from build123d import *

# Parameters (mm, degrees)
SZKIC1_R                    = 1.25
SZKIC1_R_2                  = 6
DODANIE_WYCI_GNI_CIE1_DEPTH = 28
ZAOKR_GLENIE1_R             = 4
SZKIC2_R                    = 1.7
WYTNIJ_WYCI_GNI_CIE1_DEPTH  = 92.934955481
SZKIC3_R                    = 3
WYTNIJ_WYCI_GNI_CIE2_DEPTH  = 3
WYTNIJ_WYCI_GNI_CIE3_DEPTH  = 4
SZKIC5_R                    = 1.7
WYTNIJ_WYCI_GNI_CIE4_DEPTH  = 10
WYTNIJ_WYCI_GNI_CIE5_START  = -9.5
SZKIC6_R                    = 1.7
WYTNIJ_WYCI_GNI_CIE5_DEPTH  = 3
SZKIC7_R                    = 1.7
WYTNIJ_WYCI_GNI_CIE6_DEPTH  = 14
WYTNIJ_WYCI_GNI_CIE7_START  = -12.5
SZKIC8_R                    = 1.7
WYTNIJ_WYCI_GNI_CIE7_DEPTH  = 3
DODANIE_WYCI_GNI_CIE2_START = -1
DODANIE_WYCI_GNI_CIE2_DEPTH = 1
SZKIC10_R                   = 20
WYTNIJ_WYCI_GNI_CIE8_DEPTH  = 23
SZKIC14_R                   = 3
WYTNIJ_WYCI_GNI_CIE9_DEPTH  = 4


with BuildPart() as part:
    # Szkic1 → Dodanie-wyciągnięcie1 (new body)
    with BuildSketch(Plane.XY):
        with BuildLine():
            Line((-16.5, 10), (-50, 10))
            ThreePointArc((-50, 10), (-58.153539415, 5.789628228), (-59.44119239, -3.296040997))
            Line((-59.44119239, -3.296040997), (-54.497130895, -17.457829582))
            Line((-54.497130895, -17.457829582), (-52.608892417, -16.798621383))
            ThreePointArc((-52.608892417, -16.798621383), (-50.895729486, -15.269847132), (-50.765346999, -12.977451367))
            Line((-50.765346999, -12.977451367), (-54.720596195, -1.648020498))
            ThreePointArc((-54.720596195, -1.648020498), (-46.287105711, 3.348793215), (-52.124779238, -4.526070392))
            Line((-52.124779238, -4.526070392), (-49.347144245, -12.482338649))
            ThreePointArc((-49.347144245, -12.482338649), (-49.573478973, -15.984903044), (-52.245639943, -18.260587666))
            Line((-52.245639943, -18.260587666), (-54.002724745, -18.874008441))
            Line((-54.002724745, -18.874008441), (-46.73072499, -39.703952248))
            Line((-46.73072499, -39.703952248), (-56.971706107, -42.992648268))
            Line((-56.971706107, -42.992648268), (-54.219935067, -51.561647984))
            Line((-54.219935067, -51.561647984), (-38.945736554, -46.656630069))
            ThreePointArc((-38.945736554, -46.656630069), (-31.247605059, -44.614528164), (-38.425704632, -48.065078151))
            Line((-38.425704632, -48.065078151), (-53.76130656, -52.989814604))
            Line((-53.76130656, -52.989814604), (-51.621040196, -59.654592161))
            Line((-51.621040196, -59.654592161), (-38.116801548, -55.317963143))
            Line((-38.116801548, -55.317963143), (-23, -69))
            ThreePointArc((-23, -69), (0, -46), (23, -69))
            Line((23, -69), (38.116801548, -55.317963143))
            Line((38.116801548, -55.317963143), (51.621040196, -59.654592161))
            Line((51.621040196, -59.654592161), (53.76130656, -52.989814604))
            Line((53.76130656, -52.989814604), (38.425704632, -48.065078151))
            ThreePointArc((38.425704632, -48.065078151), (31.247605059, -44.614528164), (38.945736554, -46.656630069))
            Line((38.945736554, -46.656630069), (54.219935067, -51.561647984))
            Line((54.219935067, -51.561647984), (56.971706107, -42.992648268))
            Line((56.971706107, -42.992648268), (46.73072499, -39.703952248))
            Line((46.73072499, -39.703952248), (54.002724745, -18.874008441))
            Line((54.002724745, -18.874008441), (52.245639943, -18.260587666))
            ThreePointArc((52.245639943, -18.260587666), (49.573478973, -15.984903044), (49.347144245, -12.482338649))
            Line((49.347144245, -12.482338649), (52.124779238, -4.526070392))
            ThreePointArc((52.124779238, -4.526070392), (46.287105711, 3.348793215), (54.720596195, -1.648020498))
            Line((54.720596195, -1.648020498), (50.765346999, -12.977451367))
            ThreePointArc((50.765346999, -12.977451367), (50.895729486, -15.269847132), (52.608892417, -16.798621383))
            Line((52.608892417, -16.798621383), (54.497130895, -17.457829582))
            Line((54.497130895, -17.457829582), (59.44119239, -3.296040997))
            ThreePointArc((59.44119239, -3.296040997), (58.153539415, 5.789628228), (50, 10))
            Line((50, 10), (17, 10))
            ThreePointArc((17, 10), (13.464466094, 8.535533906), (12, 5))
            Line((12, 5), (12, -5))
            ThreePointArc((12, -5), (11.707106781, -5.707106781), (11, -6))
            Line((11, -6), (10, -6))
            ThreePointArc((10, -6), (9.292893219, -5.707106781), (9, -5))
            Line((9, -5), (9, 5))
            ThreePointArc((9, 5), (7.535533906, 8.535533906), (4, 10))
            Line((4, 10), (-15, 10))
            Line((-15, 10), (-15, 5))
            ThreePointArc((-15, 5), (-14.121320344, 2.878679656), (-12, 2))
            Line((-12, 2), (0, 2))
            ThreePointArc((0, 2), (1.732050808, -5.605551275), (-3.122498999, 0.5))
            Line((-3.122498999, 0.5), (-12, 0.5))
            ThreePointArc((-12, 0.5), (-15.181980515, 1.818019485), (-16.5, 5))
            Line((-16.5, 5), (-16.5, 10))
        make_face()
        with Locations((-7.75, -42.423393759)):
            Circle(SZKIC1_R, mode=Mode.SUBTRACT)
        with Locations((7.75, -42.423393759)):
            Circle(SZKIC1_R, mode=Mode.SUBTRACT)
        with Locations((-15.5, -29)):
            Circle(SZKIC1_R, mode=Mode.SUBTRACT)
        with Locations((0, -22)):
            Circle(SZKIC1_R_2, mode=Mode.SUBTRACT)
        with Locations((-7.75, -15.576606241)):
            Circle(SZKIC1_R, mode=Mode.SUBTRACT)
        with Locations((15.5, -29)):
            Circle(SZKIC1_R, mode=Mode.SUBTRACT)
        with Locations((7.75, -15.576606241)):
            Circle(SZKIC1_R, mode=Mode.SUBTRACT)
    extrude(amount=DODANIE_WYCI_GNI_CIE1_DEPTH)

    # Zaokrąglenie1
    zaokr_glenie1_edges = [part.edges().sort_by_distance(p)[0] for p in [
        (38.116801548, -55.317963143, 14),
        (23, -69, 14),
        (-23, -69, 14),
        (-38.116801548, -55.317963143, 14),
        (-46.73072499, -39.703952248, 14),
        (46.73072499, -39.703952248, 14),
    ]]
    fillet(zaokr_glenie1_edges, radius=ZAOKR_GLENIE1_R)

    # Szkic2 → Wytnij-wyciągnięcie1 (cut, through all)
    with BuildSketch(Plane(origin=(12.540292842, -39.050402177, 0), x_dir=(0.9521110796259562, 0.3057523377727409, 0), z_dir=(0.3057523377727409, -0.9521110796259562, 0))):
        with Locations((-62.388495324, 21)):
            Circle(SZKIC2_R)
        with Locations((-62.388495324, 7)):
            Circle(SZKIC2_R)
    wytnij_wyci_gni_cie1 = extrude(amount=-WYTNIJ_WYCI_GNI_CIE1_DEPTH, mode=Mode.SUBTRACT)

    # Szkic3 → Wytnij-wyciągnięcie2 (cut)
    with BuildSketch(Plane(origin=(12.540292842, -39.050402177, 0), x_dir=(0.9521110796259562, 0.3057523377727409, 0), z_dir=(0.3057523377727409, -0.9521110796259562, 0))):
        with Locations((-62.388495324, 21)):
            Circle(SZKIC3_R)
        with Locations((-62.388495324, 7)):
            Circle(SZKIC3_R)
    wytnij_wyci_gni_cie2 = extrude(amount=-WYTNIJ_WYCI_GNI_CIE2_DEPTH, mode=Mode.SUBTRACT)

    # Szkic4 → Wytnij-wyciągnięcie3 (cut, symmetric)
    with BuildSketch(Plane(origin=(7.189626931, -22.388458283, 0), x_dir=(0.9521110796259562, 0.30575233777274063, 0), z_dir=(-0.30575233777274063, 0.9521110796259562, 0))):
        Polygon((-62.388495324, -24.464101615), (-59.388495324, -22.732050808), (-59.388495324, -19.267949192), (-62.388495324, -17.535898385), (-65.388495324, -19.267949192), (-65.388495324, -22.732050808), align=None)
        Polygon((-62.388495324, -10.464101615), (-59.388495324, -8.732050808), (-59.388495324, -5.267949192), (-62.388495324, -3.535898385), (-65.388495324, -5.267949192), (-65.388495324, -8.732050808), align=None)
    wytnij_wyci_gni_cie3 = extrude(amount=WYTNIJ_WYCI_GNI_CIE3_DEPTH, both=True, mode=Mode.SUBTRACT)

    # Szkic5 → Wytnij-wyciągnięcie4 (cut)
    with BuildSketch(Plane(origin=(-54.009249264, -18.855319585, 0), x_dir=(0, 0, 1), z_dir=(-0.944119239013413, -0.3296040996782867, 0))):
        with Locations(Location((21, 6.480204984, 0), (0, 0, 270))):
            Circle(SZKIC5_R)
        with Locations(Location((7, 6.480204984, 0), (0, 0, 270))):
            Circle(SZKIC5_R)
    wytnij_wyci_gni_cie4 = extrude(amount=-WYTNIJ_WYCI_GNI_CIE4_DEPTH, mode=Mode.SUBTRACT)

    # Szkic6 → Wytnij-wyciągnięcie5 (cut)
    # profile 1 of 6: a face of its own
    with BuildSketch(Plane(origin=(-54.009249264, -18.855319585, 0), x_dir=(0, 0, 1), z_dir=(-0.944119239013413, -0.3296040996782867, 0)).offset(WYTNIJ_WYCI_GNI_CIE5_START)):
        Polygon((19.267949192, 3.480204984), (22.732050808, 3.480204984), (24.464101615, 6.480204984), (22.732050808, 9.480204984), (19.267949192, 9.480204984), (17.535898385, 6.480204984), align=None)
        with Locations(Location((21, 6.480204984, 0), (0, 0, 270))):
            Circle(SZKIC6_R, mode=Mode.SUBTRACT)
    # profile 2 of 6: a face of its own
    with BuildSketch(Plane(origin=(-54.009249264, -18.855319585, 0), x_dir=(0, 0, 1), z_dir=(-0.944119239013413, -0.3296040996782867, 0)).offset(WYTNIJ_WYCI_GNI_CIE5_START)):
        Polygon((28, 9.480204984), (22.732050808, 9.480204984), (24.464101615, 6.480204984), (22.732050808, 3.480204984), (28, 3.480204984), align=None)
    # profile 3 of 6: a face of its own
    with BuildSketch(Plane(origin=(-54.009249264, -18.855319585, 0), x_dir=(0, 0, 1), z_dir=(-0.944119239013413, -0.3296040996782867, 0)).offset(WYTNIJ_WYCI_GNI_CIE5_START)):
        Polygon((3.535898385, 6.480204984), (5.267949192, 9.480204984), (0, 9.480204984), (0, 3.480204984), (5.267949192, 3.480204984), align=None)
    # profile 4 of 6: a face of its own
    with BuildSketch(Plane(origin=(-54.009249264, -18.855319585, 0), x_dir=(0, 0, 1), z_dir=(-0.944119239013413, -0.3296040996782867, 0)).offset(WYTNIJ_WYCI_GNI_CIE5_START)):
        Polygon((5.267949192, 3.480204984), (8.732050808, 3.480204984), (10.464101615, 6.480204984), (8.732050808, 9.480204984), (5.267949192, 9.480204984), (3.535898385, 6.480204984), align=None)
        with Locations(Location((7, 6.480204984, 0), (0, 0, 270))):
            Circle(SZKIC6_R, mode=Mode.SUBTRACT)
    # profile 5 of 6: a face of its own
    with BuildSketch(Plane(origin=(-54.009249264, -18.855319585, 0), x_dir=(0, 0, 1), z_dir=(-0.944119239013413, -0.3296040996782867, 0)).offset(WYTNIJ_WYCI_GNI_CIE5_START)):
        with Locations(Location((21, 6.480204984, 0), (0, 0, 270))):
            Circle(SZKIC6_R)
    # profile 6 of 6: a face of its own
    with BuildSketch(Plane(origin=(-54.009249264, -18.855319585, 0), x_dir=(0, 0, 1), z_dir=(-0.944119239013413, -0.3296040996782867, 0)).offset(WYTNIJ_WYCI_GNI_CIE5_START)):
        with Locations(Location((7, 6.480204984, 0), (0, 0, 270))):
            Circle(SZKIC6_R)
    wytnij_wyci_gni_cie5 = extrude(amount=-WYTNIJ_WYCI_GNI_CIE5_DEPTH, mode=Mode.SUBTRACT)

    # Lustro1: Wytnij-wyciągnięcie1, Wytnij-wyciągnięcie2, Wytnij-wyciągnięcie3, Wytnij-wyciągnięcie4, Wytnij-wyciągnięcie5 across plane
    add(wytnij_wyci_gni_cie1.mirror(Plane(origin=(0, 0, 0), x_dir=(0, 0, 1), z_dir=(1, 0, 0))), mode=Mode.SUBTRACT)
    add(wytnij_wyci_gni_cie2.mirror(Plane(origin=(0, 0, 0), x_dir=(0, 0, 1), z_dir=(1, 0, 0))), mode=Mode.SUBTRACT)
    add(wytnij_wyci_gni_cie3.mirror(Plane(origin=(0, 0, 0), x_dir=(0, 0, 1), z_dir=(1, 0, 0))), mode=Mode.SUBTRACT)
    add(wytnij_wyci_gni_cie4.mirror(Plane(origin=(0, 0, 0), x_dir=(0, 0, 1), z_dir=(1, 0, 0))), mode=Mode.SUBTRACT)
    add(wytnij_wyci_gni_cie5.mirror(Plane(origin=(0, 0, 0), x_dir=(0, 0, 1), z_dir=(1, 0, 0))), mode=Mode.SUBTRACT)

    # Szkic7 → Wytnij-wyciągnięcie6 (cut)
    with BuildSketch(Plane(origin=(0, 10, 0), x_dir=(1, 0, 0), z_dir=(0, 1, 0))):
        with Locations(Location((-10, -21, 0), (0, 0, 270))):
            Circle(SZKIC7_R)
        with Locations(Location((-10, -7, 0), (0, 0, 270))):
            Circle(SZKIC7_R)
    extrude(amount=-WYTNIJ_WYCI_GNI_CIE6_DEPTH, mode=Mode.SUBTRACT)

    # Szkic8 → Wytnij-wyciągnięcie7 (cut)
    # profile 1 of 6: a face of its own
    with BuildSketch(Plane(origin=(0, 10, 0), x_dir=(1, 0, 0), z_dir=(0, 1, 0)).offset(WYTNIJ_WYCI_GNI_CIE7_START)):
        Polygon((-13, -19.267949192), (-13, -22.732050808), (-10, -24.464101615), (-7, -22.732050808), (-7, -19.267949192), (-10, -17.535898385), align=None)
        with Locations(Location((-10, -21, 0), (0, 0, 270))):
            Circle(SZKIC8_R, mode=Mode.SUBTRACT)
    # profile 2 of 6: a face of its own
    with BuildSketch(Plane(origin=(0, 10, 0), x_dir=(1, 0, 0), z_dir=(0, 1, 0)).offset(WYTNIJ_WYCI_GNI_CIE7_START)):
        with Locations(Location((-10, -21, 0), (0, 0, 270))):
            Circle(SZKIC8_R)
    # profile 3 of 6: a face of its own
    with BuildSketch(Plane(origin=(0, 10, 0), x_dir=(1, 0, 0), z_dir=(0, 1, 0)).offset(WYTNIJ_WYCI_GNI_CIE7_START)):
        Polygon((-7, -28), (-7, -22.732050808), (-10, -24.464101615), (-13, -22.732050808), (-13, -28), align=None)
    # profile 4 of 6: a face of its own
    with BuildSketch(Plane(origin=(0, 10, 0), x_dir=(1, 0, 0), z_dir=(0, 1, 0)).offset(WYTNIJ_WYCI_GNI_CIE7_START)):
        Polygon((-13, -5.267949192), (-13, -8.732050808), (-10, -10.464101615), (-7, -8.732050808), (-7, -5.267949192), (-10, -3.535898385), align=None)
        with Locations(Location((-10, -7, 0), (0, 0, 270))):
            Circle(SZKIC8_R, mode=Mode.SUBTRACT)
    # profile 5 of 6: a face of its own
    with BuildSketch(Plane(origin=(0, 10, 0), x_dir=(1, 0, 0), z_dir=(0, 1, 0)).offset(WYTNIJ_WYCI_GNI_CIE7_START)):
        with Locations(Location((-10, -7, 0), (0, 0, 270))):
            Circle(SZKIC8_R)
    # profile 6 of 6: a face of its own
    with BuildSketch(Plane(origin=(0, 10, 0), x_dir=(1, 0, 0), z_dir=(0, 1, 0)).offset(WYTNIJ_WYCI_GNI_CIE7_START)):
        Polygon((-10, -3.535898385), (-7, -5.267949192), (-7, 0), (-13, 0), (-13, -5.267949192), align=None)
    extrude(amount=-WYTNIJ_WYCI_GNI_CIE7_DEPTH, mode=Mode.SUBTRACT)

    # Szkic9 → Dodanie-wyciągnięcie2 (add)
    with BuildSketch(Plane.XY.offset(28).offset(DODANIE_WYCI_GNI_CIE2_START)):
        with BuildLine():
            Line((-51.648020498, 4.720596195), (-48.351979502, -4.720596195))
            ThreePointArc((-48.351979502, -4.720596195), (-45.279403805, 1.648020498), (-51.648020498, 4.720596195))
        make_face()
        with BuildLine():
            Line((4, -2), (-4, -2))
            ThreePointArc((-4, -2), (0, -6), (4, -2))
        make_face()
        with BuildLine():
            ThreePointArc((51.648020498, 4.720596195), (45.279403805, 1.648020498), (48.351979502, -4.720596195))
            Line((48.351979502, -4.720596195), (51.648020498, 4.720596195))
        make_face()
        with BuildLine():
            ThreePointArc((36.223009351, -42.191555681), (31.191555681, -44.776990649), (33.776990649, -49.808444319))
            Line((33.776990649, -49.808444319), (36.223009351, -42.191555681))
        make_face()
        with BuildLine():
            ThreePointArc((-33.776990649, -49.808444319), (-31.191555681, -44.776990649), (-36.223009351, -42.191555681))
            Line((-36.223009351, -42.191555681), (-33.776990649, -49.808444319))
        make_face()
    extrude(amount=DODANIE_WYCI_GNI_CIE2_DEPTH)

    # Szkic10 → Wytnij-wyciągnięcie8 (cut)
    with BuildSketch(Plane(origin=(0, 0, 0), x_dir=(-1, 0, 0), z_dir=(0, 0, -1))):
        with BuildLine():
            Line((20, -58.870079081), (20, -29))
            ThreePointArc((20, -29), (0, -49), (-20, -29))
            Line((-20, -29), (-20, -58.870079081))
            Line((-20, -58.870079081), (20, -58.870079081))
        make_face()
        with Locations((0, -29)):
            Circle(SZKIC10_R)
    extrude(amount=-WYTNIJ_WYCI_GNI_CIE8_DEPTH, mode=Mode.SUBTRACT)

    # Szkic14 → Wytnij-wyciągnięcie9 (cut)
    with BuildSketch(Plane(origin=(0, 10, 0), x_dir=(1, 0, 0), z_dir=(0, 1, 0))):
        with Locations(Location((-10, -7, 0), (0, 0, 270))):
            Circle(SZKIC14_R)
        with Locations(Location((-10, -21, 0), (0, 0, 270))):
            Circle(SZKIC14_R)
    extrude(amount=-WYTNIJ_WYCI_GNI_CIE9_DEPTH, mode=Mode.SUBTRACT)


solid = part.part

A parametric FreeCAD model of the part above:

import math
import FreeCAD as App
import Part
import Sketcher
Q = App.Units.Quantity


def edges_at(feature, points):
    """Names of the edges that pass closest to the given points."""
    edges = feature.Shape.Edges
    near = lambda p: min(range(len(edges)), key=lambda i: edges[i].distToShape(Part.Vertex(*p))[0])
    return sorted({f"Edge{near(p) + 1}" for p in points})


def add_polygon(sketch, points):
    """Adds a closed chain of lines whose ends are joined by coincident constraints."""
    first, n = sketch.GeometryCount, len(points)
    for a, b in zip(points, points[1:] + points[:1]):
        sketch.addGeometry(Part.LineSegment(App.Vector(*a, 0), App.Vector(*b, 0)), False)
    for i in range(n):
        sketch.addConstraint(Sketcher.Constraint("Coincident", first + i, 2, first + (i + 1) % n, 1))

doc = App.newDocument("Part")
body = doc.addObject("PartDesign::Body", "Body")

# Sketch on XY plane
sketch1 = body.newObject("Sketcher::SketchObject", "Sketch")
sketch1.AttachmentSupport = (doc.getObject("XY_Plane"), [""])
sketch1.MapMode = "FlatFace"
sketch1.addGeometry(Part.LineSegment(App.Vector(-16.5, 10, 0), App.Vector(-50, 10, 0)), False)
sketch1.addGeometry(Part.ArcOfCircle(Part.Circle(App.Vector(-50, 0, 0), App.Vector(0, 0, 1), 10), math.radians(90), math.radians(199)), False)
sketch1.addGeometry(Part.LineSegment(App.Vector(-59.4, -3.3, 0), App.Vector(-54.5, -17.5, 0)), False)
sketch1.addGeometry(Part.LineSegment(App.Vector(-54.5, -17.5, 0), App.Vector(-52.6, -16.8, 0)), False)
sketch1.addGeometry(Part.ArcOfCircle(Part.Circle(App.Vector(-53.6, -14, 0), App.Vector(0, 0, 1), 3), math.radians(-71), math.radians(19)), False)
sketch1.addGeometry(Part.LineSegment(App.Vector(-50.8, -13, 0), App.Vector(-54.7, -1.6, 0)), False)
sketch1.addGeometry(Part.ArcOfCircle(Part.Circle(App.Vector(-50, 0, 0), App.Vector(0, 0, 1), 5), math.radians(-115), math.radians(199)), False)
sketch1.addGeometry(Part.LineSegment(App.Vector(-52.1, -4.5, 0), App.Vector(-49.3, -12.5, 0)), False)
sketch1.addGeometry(Part.ArcOfCircle(Part.Circle(App.Vector(-53.6, -14, 0), App.Vector(0, 0, 1), 4.5), math.radians(-73), math.radians(19)), False)
sketch1.addGeometry(Part.LineSegment(App.Vector(-52.2, -18.3, 0), App.Vector(-54, -18.9, 0)), False)
sketch1.addGeometry(Part.LineSegment(App.Vector(-54, -18.9, 0), App.Vector(-46.7, -39.7, 0)), False)
sketch1.addGeometry(Part.LineSegment(App.Vector(-46.7, -39.7, 0), App.Vector(-57, -43, 0)), False)
sketch1.addGeometry(Part.LineSegment(App.Vector(-57, -43, 0), App.Vector(-54.2, -51.6, 0)), False)
sketch1.addGeometry(Part.LineSegment(App.Vector(-54.2, -51.6, 0), App.Vector(-38.9, -46.7, 0)), False)
sketch1.addGeometry(Part.ArcOfCircle(Part.Circle(App.Vector(-35, -46, 0), App.Vector(0, 0, 1), 4), math.radians(-149), math.radians(189)), False)
sketch1.addGeometry(Part.LineSegment(App.Vector(-38.4, -48.1, 0), App.Vector(-53.8, -53, 0)), False)
sketch1.addGeometry(Part.LineSegment(App.Vector(-53.8, -53, 0), App.Vector(-51.6, -59.7, 0)), False)
sketch1.addGeometry(Part.LineSegment(App.Vector(-51.6, -59.7, 0), App.Vector(-38.1, -55.3, 0)), False)
sketch1.addGeometry(Part.LineSegment(App.Vector(-38.1, -55.3, 0), App.Vector(-23, -69, 0)), False)
sketch1.addGeometry(Part.ArcOfCircle(Part.Circle(App.Vector(0, -69, 0), App.Vector(0, 0, 1), 23), math.radians(0), math.radians(180)), False)
sketch1.addGeometry(Part.LineSegment(App.Vector(23, -69, 0), App.Vector(38.1, -55.3, 0)), False)
sketch1.addGeometry(Part.LineSegment(App.Vector(38.1, -55.3, 0), App.Vector(51.6, -59.7, 0)), False)
sketch1.addGeometry(Part.LineSegment(App.Vector(51.6, -59.7, 0), App.Vector(53.8, -53, 0)), False)
sketch1.addGeometry(Part.LineSegment(App.Vector(53.8, -53, 0), App.Vector(38.4, -48.1, 0)), False)
sketch1.addGeometry(Part.ArcOfCircle(Part.Circle(App.Vector(35, -46, 0), App.Vector(0, 0, 1), 4), math.radians(-9), math.radians(329)), False)
sketch1.addGeometry(Part.LineSegment(App.Vector(38.9, -46.7, 0), App.Vector(54.2, -51.6, 0)), False)
sketch1.addGeometry(Part.LineSegment(App.Vector(54.2, -51.6, 0), App.Vector(57, -43, 0)), False)
sketch1.addGeometry(Part.LineSegment(App.Vector(57, -43, 0), App.Vector(46.7, -39.7, 0)), False)
sketch1.addGeometry(Part.LineSegment(App.Vector(46.7, -39.7, 0), App.Vector(54, -18.9, 0)), False)
sketch1.addGeometry(Part.LineSegment(App.Vector(54, -18.9, 0), App.Vector(52.2, -18.3, 0)), False)
sketch1.addGeometry(Part.ArcOfCircle(Part.Circle(App.Vector(53.6, -14, 0), App.Vector(0, 0, 1), 4.5), math.radians(161), math.radians(253)), False)
sketch1.addGeometry(Part.LineSegment(App.Vector(49.3, -12.5, 0), App.Vector(52.1, -4.5, 0)), False)
sketch1.addGeometry(Part.ArcOfCircle(Part.Circle(App.Vector(50, 0, 0), App.Vector(0, 0, 1), 5), math.radians(-19), math.radians(295)), False)
sketch1.addGeometry(Part.LineSegment(App.Vector(54.7, -1.6, 0), App.Vector(50.8, -13, 0)), False)
sketch1.addGeometry(Part.ArcOfCircle(Part.Circle(App.Vector(53.6, -14, 0), App.Vector(0, 0, 1), 3), math.radians(161), math.radians(251)), False)
sketch1.addGeometry(Part.LineSegment(App.Vector(52.6, -16.8, 0), App.Vector(54.5, -17.5, 0)), False)
sketch1.addGeometry(Part.LineSegment(App.Vector(54.5, -17.5, 0), App.Vector(59.4, -3.3, 0)), False)
sketch1.addGeometry(Part.ArcOfCircle(Part.Circle(App.Vector(50, 0, 0), App.Vector(0, 0, 1), 10), math.radians(-19), math.radians(90)), False)
sketch1.addGeometry(Part.LineSegment(App.Vector(50, 10, 0), App.Vector(17, 10, 0)), False)
sketch1.addGeometry(Part.ArcOfCircle(Part.Circle(App.Vector(17, 5, 0), App.Vector(0, 0, 1), 5), math.radians(90), math.radians(180)), False)
sketch1.addGeometry(Part.LineSegment(App.Vector(12, 5, 0), App.Vector(12, -5, 0)), False)
sketch1.addGeometry(Part.ArcOfCircle(Part.Circle(App.Vector(11, -5, 0), App.Vector(0, 0, 1), 1), math.radians(-90), math.radians(0)), False)
sketch1.addGeometry(Part.LineSegment(App.Vector(11, -6, 0), App.Vector(10, -6, 0)), False)
sketch1.addGeometry(Part.ArcOfCircle(Part.Circle(App.Vector(10, -5, 0), App.Vector(0, 0, 1), 1), math.radians(-180), math.radians(-90)), False)
sketch1.addGeometry(Part.LineSegment(App.Vector(9, -5, 0), App.Vector(9, 5, 0)), False)
sketch1.addGeometry(Part.ArcOfCircle(Part.Circle(App.Vector(4, 5, 0), App.Vector(0, 0, 1), 5), math.radians(0), math.radians(90)), False)
sketch1.addGeometry(Part.LineSegment(App.Vector(4, 10, 0), App.Vector(-15, 10, 0)), False)
sketch1.addGeometry(Part.LineSegment(App.Vector(-15, 10, 0), App.Vector(-15, 5, 0)), False)
sketch1.addGeometry(Part.ArcOfCircle(Part.Circle(App.Vector(-12, 5, 0), App.Vector(0, 0, 1), 3), math.radians(180), math.radians(270)), False)
sketch1.addGeometry(Part.LineSegment(App.Vector(-12, 2, 0), App.Vector(0, 2, 0)), False)
sketch1.addGeometry(Part.ArcOfCircle(Part.Circle(App.Vector(0, -2, 0), App.Vector(0, 0, 1), 4), math.radians(141), math.radians(450)), False)
sketch1.addGeometry(Part.LineSegment(App.Vector(-3.1, 0.5, 0), App.Vector(-12, 0.5, 0)), False)
sketch1.addGeometry(Part.ArcOfCircle(Part.Circle(App.Vector(-12, 5, 0), App.Vector(0, 0, 1), 4.5), math.radians(-180), math.radians(-90)), False)
sketch1.addGeometry(Part.LineSegment(App.Vector(-16.5, 5, 0), App.Vector(-16.5, 10, 0)), False)
sketch1.addGeometry(Part.Circle(App.Vector(-7.8, -42.4, 0), App.Vector(0, 0, 1), 1.2), False)
sketch1.addGeometry(Part.Circle(App.Vector(-15.5, -29, 0), App.Vector(0, 0, 1), 1.2), False)
sketch1.addGeometry(Part.Circle(App.Vector(7.8, -42.4, 0), App.Vector(0, 0, 1), 1.2), False)
sketch1.addGeometry(Part.Circle(App.Vector(15.5, -29, 0), App.Vector(0, 0, 1), 1.2), False)
sketch1.addGeometry(Part.Circle(App.Vector(-7.8, -15.6, 0), App.Vector(0, 0, 1), 1.2), False)
sketch1.addGeometry(Part.Circle(App.Vector(0, -22, 0), App.Vector(0, 0, 1), 6), False)
sketch1.addGeometry(Part.Circle(App.Vector(7.8, -15.6, 0), App.Vector(0, 0, 1), 1.2), False)
sketch1.addConstraint(Sketcher.Constraint("Tangent", 0, 2, 1, 1))
sketch1.addConstraint(Sketcher.Constraint("Tangent", 1, 2, 2, 1))
sketch1.addConstraint(Sketcher.Constraint("Coincident", 2, 2, 3, 1))
sketch1.addConstraint(Sketcher.Constraint("Tangent", 3, 2, 4, 1))
sketch1.addConstraint(Sketcher.Constraint("Tangent", 4, 2, 5, 1))
sketch1.addConstraint(Sketcher.Constraint("Tangent", 5, 2, 6, 2))
sketch1.addConstraint(Sketcher.Constraint("Coincident", 6, 1, 7, 1))
sketch1.addConstraint(Sketcher.Constraint("Tangent", 7, 2, 8, 2))
sketch1.addConstraint(Sketcher.Constraint("Coincident", 8, 1, 9, 1))
sketch1.addConstraint(Sketcher.Constraint("Coincident", 9, 2, 10, 1))
sketch1.addConstraint(Sketcher.Constraint("Coincident", 10, 2, 11, 1))
sketch1.addConstraint(Sketcher.Constraint("Coincident", 11, 2, 12, 1))
sketch1.addConstraint(Sketcher.Constraint("Coincident", 12, 2, 13, 1))
sketch1.addConstraint(Sketcher.Constraint("Coincident", 13, 2, 14, 2))
sketch1.addConstraint(Sketcher.Constraint("Coincident", 14, 1, 15, 1))
sketch1.addConstraint(Sketcher.Constraint("Coincident", 15, 2, 16, 1))
sketch1.addConstraint(Sketcher.Constraint("Coincident", 16, 2, 17, 1))
sketch1.addConstraint(Sketcher.Constraint("Coincident", 17, 2, 18, 1))
sketch1.addConstraint(Sketcher.Constraint("Coincident", 18, 2, 19, 2))
sketch1.addConstraint(Sketcher.Constraint("Coincident", 19, 1, 20, 1))
sketch1.addConstraint(Sketcher.Constraint("Coincident", 20, 2, 21, 1))
sketch1.addConstraint(Sketcher.Constraint("Coincident", 21, 2, 22, 1))
sketch1.addConstraint(Sketcher.Constraint("Coincident", 22, 2, 23, 1))
sketch1.addConstraint(Sketcher.Constraint("Coincident", 23, 2, 24, 2))
sketch1.addConstraint(Sketcher.Constraint("Coincident", 24, 1, 25, 1))
sketch1.addConstraint(Sketcher.Constraint("Coincident", 25, 2, 26, 1))
sketch1.addConstraint(Sketcher.Constraint("Coincident", 26, 2, 27, 1))
sketch1.addConstraint(Sketcher.Constraint("Coincident", 27, 2, 28, 1))
sketch1.addConstraint(Sketcher.Constraint("Coincident", 28, 2, 29, 1))
sketch1.addConstraint(Sketcher.Constraint("Coincident", 29, 2, 30, 2))
sketch1.addConstraint(Sketcher.Constraint("Tangent", 30, 1, 31, 1))
sketch1.addConstraint(Sketcher.Constraint("Coincident", 31, 2, 32, 2))
sketch1.addConstraint(Sketcher.Constraint("Tangent", 32, 1, 33, 1))
sketch1.addConstraint(Sketcher.Constraint("Tangent", 33, 2, 34, 1))
sketch1.addConstraint(Sketcher.Constraint("Tangent", 34, 2, 35, 1))
sketch1.addConstraint(Sketcher.Constraint("Coincident", 35, 2, 36, 1))
sketch1.addConstraint(Sketcher.Constraint("Tangent", 36, 2, 37, 1))
sketch1.addConstraint(Sketcher.Constraint("Tangent", 37, 2, 38, 1))
sketch1.addConstraint(Sketcher.Constraint("Tangent", 38, 2, 39, 1))
sketch1.addConstraint(Sketcher.Constraint("Tangent", 39, 2, 40, 1))
sketch1.addConstraint(Sketcher.Constraint("Tangent", 40, 2, 41, 2))
sketch1.addConstraint(Sketcher.Constraint("Tangent", 41, 1, 42, 1))
sketch1.addConstraint(Sketcher.Constraint("Tangent", 42, 2, 43, 2))
sketch1.addConstraint(Sketcher.Constraint("Tangent", 43, 1, 44, 1))
sketch1.addConstraint(Sketcher.Constraint("Tangent", 44, 2, 45, 1))
sketch1.addConstraint(Sketcher.Constraint("Tangent", 45, 2, 46, 1))
sketch1.addConstraint(Sketcher.Constraint("Coincident", 46, 2, 47, 1))
sketch1.addConstraint(Sketcher.Constraint("Tangent", 47, 2, 48, 1))
sketch1.addConstraint(Sketcher.Constraint("Tangent", 48, 2, 49, 1))
sketch1.addConstraint(Sketcher.Constraint("Tangent", 49, 2, 50, 2))
sketch1.addConstraint(Sketcher.Constraint("Coincident", 50, 1, 51, 1))
sketch1.addConstraint(Sketcher.Constraint("Tangent", 51, 2, 52, 2))
sketch1.addConstraint(Sketcher.Constraint("Tangent", 52, 1, 53, 1))
sketch1.addConstraint(Sketcher.Constraint("Coincident", 53, 2, 0, 1))
sketch1.addConstraint(Sketcher.Constraint("Horizontal", 0))
sketch1.addConstraint(Sketcher.Constraint("Horizontal", 38))
sketch1.addConstraint(Sketcher.Constraint("Vertical", 40))
sketch1.addConstraint(Sketcher.Constraint("Horizontal", 42))
sketch1.addConstraint(Sketcher.Constraint("Vertical", 44))
sketch1.addConstraint(Sketcher.Constraint("Horizontal", 46))
sketch1.addConstraint(Sketcher.Constraint("Vertical", 47))
sketch1.addConstraint(Sketcher.Constraint("Horizontal", 49))
sketch1.addConstraint(Sketcher.Constraint("Horizontal", 51))
sketch1.addConstraint(Sketcher.Constraint("Vertical", 53))
sketch1.addConstraint(Sketcher.Constraint("Coincident", 6, 3, 1, 3))
sketch1.addConstraint(Sketcher.Constraint("Coincident", 8, 3, 4, 3))
sketch1.addConstraint(Sketcher.Constraint("Coincident", 34, 3, 30, 3))
sketch1.addConstraint(Sketcher.Constraint("Coincident", 37, 3, 32, 3))
sketch1.addConstraint(Sketcher.Constraint("Coincident", 52, 3, 48, 3))
sketch1.addConstraint(Sketcher.Constraint("Equal", 14, 24))
sketch1.addConstraint(Sketcher.Constraint("Equal", 8, 30))
sketch1.addConstraint(Sketcher.Constraint("Equal", 6, 32))
sketch1.addConstraint(Sketcher.Constraint("Equal", 4, 34))
sketch1.addConstraint(Sketcher.Constraint("Equal", 1, 37))
sketch1.addConstraint(Sketcher.Constraint("Equal", 32, 39))
sketch1.addConstraint(Sketcher.Constraint("Equal", 41, 43))
sketch1.addConstraint(Sketcher.Constraint("Equal", 39, 45))
sketch1.addConstraint(Sketcher.Constraint("Equal", 34, 48))
sketch1.addConstraint(Sketcher.Constraint("Equal", 24, 50))
sketch1.addConstraint(Sketcher.Constraint("Equal", 54, 55))
sketch1.addConstraint(Sketcher.Constraint("Equal", 55, 56))
sketch1.addConstraint(Sketcher.Constraint("Equal", 56, 57))
sketch1.addConstraint(Sketcher.Constraint("Equal", 57, 58))
sketch1.addConstraint(Sketcher.Constraint("Equal", 58, 60))
sketch1.addConstraint(Sketcher.Constraint("Symmetric", 1, 3, 32, 3, -1, 1))
sketch1.addConstraint(Sketcher.Constraint("Symmetric", 14, 3, 24, 3, -2))
sketch1.addConstraint(Sketcher.Constraint("Symmetric", 4, 3, 30, 3, -2))
sketch1.addConstraint(Sketcher.Constraint("Symmetric", 54, 3, 56, 3, -2))
sketch1.addConstraint(Sketcher.Constraint("Symmetric", 55, 3, 57, 3, -2))
sketch1.addConstraint(Sketcher.Constraint("Symmetric", 58, 3, 60, 3, -2))
sketch1.addConstraint(Sketcher.Constraint("Symmetric", 18, 2, 19, 1, -2))
sketch1.addConstraint(Sketcher.Constraint("Symmetric", 17, 2, 20, 2, -2))
sketch1.addConstraint(Sketcher.Constraint("Symmetric", 16, 2, 21, 2, -2))
sketch1.addConstraint(Sketcher.Constraint("Symmetric", 15, 2, 22, 2, -2))
sketch1.addConstraint(Sketcher.Constraint("Symmetric", 12, 2, 25, 2, -2))
sketch1.addConstraint(Sketcher.Constraint("Symmetric", 11, 2, 26, 2, -2))
sketch1.addConstraint(Sketcher.Constraint("Symmetric", 10, 2, 27, 2, -2))
sketch1.addConstraint(Sketcher.Constraint("Symmetric", 9, 2, 28, 2, -2))
sketch1.addConstraint(Sketcher.Constraint("Symmetric", 6, 1, 31, 2, -2))
sketch1.addConstraint(Sketcher.Constraint("Symmetric", 2, 2, 35, 2, -2))
sketch1.addConstraint(Sketcher.Constraint("PointOnObject", 50, 3, -2))
sketch1.addConstraint(Sketcher.Constraint("PointOnObject", 59, 3, -2))
sketch1.addConstraint(Sketcher.Constraint("Perpendicular", 2, 3))
sketch1.addConstraint(Sketcher.Constraint("Perpendicular", 3, 5))
sketch1.addConstraint(Sketcher.Constraint("Parallel", 5, 7))
sketch1.addConstraint(Sketcher.Constraint("Perpendicular", 7, 9))
sketch1.addConstraint(Sketcher.Constraint("Perpendicular", 9, 10))
sketch1.addConstraint(Sketcher.Constraint("Perpendicular", 11, 12))
sketch1.addConstraint(Sketcher.Constraint("Perpendicular", 12, 13))
sketch1.addConstraint(Sketcher.Constraint("Parallel", 13, 15))
sketch1.addConstraint(Sketcher.Constraint("Perpendicular", 15, 16))
sketch1.addConstraint(Sketcher.Constraint("Perpendicular", 16, 17))
sketch1.addConstraint(Sketcher.Constraint("Perpendicular", 22, 23))
sketch1.addConstraint(Sketcher.Constraint("Parallel", 23, 25))
sketch1.addConstraint(Sketcher.Constraint("Perpendicular", 28, 29))
sketch1.addConstraint(Sketcher.Constraint("Horizontal", 39, 3, 45, 3))
sketch1.addConstraint(Sketcher.Constraint("Horizontal", 45, 3, 48, 3))
sketch1.addConstraint(Sketcher.Constraint("Horizontal", 19, 3, 18, 2))
sketch1.addConstraint(Sketcher.Constraint("Vertical", 54, 3, 58, 3))
sketch1.addConstraint(Sketcher.Constraint("Diameter", 59, 12.0))
sketch1.addConstraint(Sketcher.Constraint("Radius", 1, 10.0))
sketch1.addConstraint(Sketcher.Constraint("Radius", 4, 3.0))
sketch1.addConstraint(Sketcher.Constraint("Radius", 6, 5.0))
sketch1.addConstraint(Sketcher.Constraint("Radius", 14, 4.0))
sketch1.addConstraint(Sketcher.Constraint("Radius", 19, 23.0))
sketch1.addConstraint(Sketcher.Constraint("Radius", 41, 1.0))
sketch1.addConstraint(Sketcher.Constraint("Diameter", 54, 2.5))
sketch1.addConstraint(Sketcher.Constraint("Radius", 52, 4.5))
sketch1.addConstraint(Sketcher.Constraint("DistanceX", 38, 2, 38, 1, 33.0))
sketch1.addConstraint(Sketcher.Constraint("DistanceX", 42, 2, 42, 1, 1.0))
sketch1.addConstraint(Sketcher.Constraint("DistanceX", 46, 2, 46, 1, 19.0))
sketch1.addConstraint(Sketcher.Constraint("DistanceX", 49, 1, 49, 2, 12.0))
sketch1.addConstraint(Sketcher.Constraint("DistanceY", 40, 2, 40, 1, 10.0))
sketch1.addConstraint(Sketcher.Constraint("Distance", 2, 15.0))
sketch1.addConstraint(Sketcher.Constraint("Distance", 12, 9.0))
sketch1.addConstraint(Sketcher.Constraint("Distance", 16, 7.0))
sketch1.addConstraint(Sketcher.Constraint("DistanceX", 14, 3, -1, 1, 35.0))
sketch1.addConstraint(Sketcher.Constraint("DistanceY", 14, 3, -1, 1, 46.0))
sketch1.addConstraint(Sketcher.Constraint("DistanceY", 19, 3, -1, 1, 69.0))
sketch1.addConstraint(Sketcher.Constraint("DistanceY", 55, 3, -1, 1, 29.0))
sketch1.addConstraint(Sketcher.Constraint("DistanceY", 59, 3, -1, 1, 22.0))
sketch1.addConstraint(Sketcher.Constraint("DistanceX", 55, 3, -1, 1, 15.5))
sketch1.addConstraint(Sketcher.Constraint("DistanceX", 54, 3, -1, 1, 7.75))
sketch1.addConstraint(Sketcher.Constraint("Radius", 8, 4.502144))
sketch1.addConstraint(Sketcher.Constraint("DistanceX", 17, 2, -1, 1, 38.116802))
sketch1.addConstraint(Sketcher.Constraint("Distance", 10, 22.062832))
sketch1.addConstraint(Sketcher.Constraint("Distance", 11, 10.756078))
sketch1.addConstraint(Sketcher.Constraint("Distance", 17, 14.18347))
sketch1.addConstraint(Sketcher.Constraint("Distance", 18, 20.38911))
sketch1.addConstraint(Sketcher.Constraint("DistanceY", 1, 2, -1, 1, 3.296041))
sketch1.addConstraint(Sketcher.Constraint("DistanceX", 8, 1, -1, 1, 52.24564))
sketch1.addConstraint(Sketcher.Constraint("DistanceY", 9, 2, -1, 1, 18.874008))
sketch1.addConstraint(Sketcher.Constraint("DistanceY", 11, 2, -1, 1, 42.992648))
sketch1.addConstraint(Sketcher.Constraint("DistanceY", 54, 3, -1, 1, 42.423394))
sketch1.addConstraint(Sketcher.Constraint("DistanceY", 58, 3, -1, 1, 15.576606))
pad1 = body.newObject("PartDesign::Pad", "Pad")
pad1.Profile = sketch1
pad1.Length = 28
doc.recompute()

fillet = body.newObject("PartDesign::Fillet", "Fillet")
fillet.Base = (pad1, edges_at(pad1, [
    (38.117, -55.318, 14),
    (23, -69, 14),
    (-23, -69, 14),
    (-38.117, -55.318, 14),
    (-46.731, -39.704, 14),
    (46.731, -39.704, 14),
]))
fillet.Radius = 4

# Sketch on an angled plane
sketch2 = body.newObject("Sketcher::SketchObject", "Sketch001")
sketch2.Placement = App.Placement(App.Vector(12.540293, -39.050402, 0), App.Rotation(App.Vector(0.95211108, 0.305752338, 0), App.Vector(0, 0, 1.000000001), App.Vector(0.305752338, -0.95211108, 0), "ZXY"))
sketch2.addGeometry(Part.Circle(App.Vector(-62.4, 21, 0), App.Vector(0, 0, 1), 1.7), False)
sketch2.addGeometry(Part.Circle(App.Vector(-62.4, 7, 0), App.Vector(0, 0, 1), 1.7), False)
sketch2.addConstraint(Sketcher.Constraint("Equal", 0, 1))
sketch2.addConstraint(Sketcher.Constraint("Vertical", 0, 3, 1, 3))
sketch2.addConstraint(Sketcher.Constraint("Diameter", 0, 3.4))
sketch2.addConstraint(Sketcher.Constraint("DistanceY", -1, 1, 0, 3, 21.0))
sketch2.addConstraint(Sketcher.Constraint("DistanceY", -1, 1, 1, 3, 7.0))
sketch2.addConstraint(Sketcher.Constraint("DistanceX", 0, 3, -1, 1, 62.388495))
pocket1 = body.newObject("PartDesign::Pocket", "Pocket")
pocket1.Profile = sketch2
pocket1.Type = "ThroughAll"

# Sketch on an angled plane
sketch3 = body.newObject("Sketcher::SketchObject", "Sketch002")
sketch3.Placement = App.Placement(App.Vector(12.540293, -39.050402, 0), App.Rotation(App.Vector(0.95211108, 0.305752338, 0), App.Vector(0, 0, 1.000000001), App.Vector(0.305752338, -0.95211108, 0), "ZXY"))
sketch3.addGeometry(Part.Circle(App.Vector(-62.4, 21, 0), App.Vector(0, 0, 1), 3), False)
sketch3.addGeometry(Part.Circle(App.Vector(-62.4, 7, 0), App.Vector(0, 0, 1), 3), False)
sketch3.addConstraint(Sketcher.Constraint("Equal", 0, 1))
sketch3.addConstraint(Sketcher.Constraint("Vertical", 0, 3, 1, 3))
sketch3.addConstraint(Sketcher.Constraint("Diameter", 0, 6.0))
sketch3.addConstraint(Sketcher.Constraint("DistanceY", -1, 1, 0, 3, 21.0))
sketch3.addConstraint(Sketcher.Constraint("DistanceY", -1, 1, 1, 3, 7.0))
sketch3.addConstraint(Sketcher.Constraint("DistanceX", 0, 3, -1, 1, 62.388495))
pocket2 = body.newObject("PartDesign::Pocket", "Pocket001")
pocket2.Profile = sketch3
pocket2.Length = 3

# Sketch on an angled plane
sketch4 = body.newObject("Sketcher::SketchObject", "Sketch003")
sketch4.Placement = App.Placement(App.Vector(7.189627, -22.388458, 0), App.Rotation(App.Vector(0.95211108, 0.305752338, 0), App.Vector(0, 0, -1.000000001), App.Vector(-0.305752338, 0.95211108, 0), "ZXY"))
add_polygon(sketch4, [(-62.4, -24.5), (-59.4, -22.7), (-59.4, -19.3), (-62.4, -17.5), (-65.4, -19.3), (-65.4, -22.7)])  # lines 0-5
add_polygon(sketch4, [(-62.4, -10.5), (-59.4, -8.7), (-59.4, -5.3), (-62.4, -3.5), (-65.4, -5.3), (-65.4, -8.7)])  # lines 6-11
sketch4.addConstraint(Sketcher.Constraint("Vertical", 1))
sketch4.addConstraint(Sketcher.Constraint("Vertical", 4))
sketch4.addConstraint(Sketcher.Constraint("Vertical", 7))
sketch4.addConstraint(Sketcher.Constraint("Vertical", 10))
sketch4.addConstraint(Sketcher.Constraint("Parallel", 0, 3))
sketch4.addConstraint(Sketcher.Constraint("Parallel", 2, 5))
sketch4.addConstraint(Sketcher.Constraint("Parallel", 3, 6))
sketch4.addConstraint(Sketcher.Constraint("Parallel", 5, 8))
sketch4.addConstraint(Sketcher.Constraint("Parallel", 6, 9))
sketch4.addConstraint(Sketcher.Constraint("Parallel", 8, 11))
sketch4.addConstraint(Sketcher.Constraint("Horizontal", 1, 2, 3, 2))
sketch4.addConstraint(Sketcher.Constraint("Horizontal", 0, 2, 4, 2))
sketch4.addConstraint(Sketcher.Constraint("Horizontal", 7, 2, 9, 2))
sketch4.addConstraint(Sketcher.Constraint("Horizontal", 6, 2, 10, 2))
sketch4.addConstraint(Sketcher.Constraint("Vertical", 2, 2, 5, 2))
sketch4.addConstraint(Sketcher.Constraint("Vertical", 1, 2, 6, 2))
sketch4.addConstraint(Sketcher.Constraint("Vertical", 5, 2, 8, 2))
sketch4.addConstraint(Sketcher.Constraint("Equal", 4, 7))
sketch4.addConstraint(Sketcher.Constraint("Angle", 0, Q("30 deg")))
sketch4.addConstraint(Sketcher.Constraint("DistanceX", 2, 2, 1, 2, 3.0))
sketch4.addConstraint(Sketcher.Constraint("DistanceY", 0, 2, 6, 2, 14.0))
sketch4.addConstraint(Sketcher.Constraint("DistanceY", 1, 1, 1, 2, 3.464102))
sketch4.addConstraint(Sketcher.Constraint("DistanceY", 2, 2, -1, 1, 17.535898))
sketch4.addConstraint(Sketcher.Constraint("DistanceX", 0, 2, -1, 1, 59.388495))
pocket3 = body.newObject("PartDesign::Pocket", "Pocket002")
pocket3.Profile = sketch4
pocket3.Length = 8
pocket3.Midplane = True

# Sketch on an angled plane
sketch5 = body.newObject("Sketcher::SketchObject", "Sketch004")
sketch5.Placement = App.Placement(App.Vector(-54.009249, -18.85532, 0), App.Rotation(App.Vector(0, 0, 1), App.Vector(-0.3296041, 0.944119239, 0), App.Vector(-0.944119239, -0.3296041, 0), "ZXY"))
sketch5.addGeometry(Part.Circle(App.Vector(21, 6.5, 0), App.Vector(0, 0, 1), 1.7), False)
sketch5.addGeometry(Part.Circle(App.Vector(7, 6.5, 0), App.Vector(0, 0, 1), 1.7), False)
sketch5.addConstraint(Sketcher.Constraint("Equal", 0, 1))
sketch5.addConstraint(Sketcher.Constraint("Horizontal", 0, 3, 1, 3))
sketch5.addConstraint(Sketcher.Constraint("Diameter", 0, 3.4))
sketch5.addConstraint(Sketcher.Constraint("DistanceX", -1, 1, 0, 3, 21.0))
sketch5.addConstraint(Sketcher.Constraint("DistanceX", -1, 1, 1, 3, 7.0))
sketch5.addConstraint(Sketcher.Constraint("DistanceY", -1, 1, 0, 3, 6.480205))
pocket4 = body.newObject("PartDesign::Pocket", "Pocket003")
pocket4.Profile = sketch5
pocket4.Length = 10

# Sketch on an angled plane
sketch6 = body.newObject("Sketcher::SketchObject", "Sketch005")
sketch6.Placement = App.Placement(App.Vector(-45.040116, -15.724081, 0), App.Rotation(App.Vector(0, 0, 1), App.Vector(-0.3296041, 0.944119239, 0), App.Vector(-0.944119239, -0.3296041, 0), "ZXY"))
add_polygon(sketch6, [(19.3, 3.5), (28, 3.5), (28, 9.5), (19.3, 9.5), (17.5, 6.5)])  # lines 0-4
add_polygon(sketch6, [(0, 9.5), (0, 3.5), (8.7, 3.5), (10.5, 6.5), (8.7, 9.5)])  # lines 5-9
sketch6.addConstraint(Sketcher.Constraint("Horizontal", 0))
sketch6.addConstraint(Sketcher.Constraint("Vertical", 1))
sketch6.addConstraint(Sketcher.Constraint("Horizontal", 2))
sketch6.addConstraint(Sketcher.Constraint("Vertical", 5))
sketch6.addConstraint(Sketcher.Constraint("Horizontal", 6))
sketch6.addConstraint(Sketcher.Constraint("Horizontal", 9))
sketch6.addConstraint(Sketcher.Constraint("PointOnObject", 5, 2, -2))
sketch6.addConstraint(Sketcher.Constraint("Parallel", 3, 7))
sketch6.addConstraint(Sketcher.Constraint("Parallel", 4, 8))
sketch6.addConstraint(Sketcher.Constraint("Horizontal", 4, 2, 5, 2))
sketch6.addConstraint(Sketcher.Constraint("Horizontal", 3, 2, 7, 2))
sketch6.addConstraint(Sketcher.Constraint("Horizontal", 2, 2, 8, 2))
sketch6.addConstraint(Sketcher.Constraint("Vertical", 2, 2, 4, 2))
sketch6.addConstraint(Sketcher.Constraint("Vertical", 6, 2, 8, 2))
sketch6.addConstraint(Sketcher.Constraint("Equal", 2, 6))
sketch6.addConstraint(Sketcher.Constraint("DistanceY", 1, 1, 1, 2, 6.0))
sketch6.addConstraint(Sketcher.Constraint("Angle", 3, Q("-120 deg")))
sketch6.addConstraint(Sketcher.Constraint("DistanceX", -1, 1, 0, 2, 28.0))
sketch6.addConstraint(Sketcher.Constraint("DistanceX", 0, 1, 0, 2, 8.732051))
sketch6.addConstraint(Sketcher.Constraint("DistanceY", -1, 1, 0, 2, 3.480205))
pocket5 = body.newObject("PartDesign::Pocket", "Pocket004")
pocket5.Profile = sketch6
pocket5.Length = 3
doc.recompute()

mirrored = body.newObject("PartDesign::Mirrored", "Mirrored")
mirrored.Originals = [pocket1, pocket2, pocket3, pocket4, pocket5]
mirrored.MirrorPlane = (doc.getObject("YZ_Plane"), [""])
body.Tip = mirrored

# Sketch on XZ plane
sketch7 = body.newObject("Sketcher::SketchObject", "Sketch006")
sketch7.AttachmentSupport = (doc.getObject("XZ_Plane"), [""])
sketch7.MapMode = "FlatFace"
sketch7.AttachmentOffset = App.Placement(App.Vector(0, 0, -10), App.Rotation())
sketch7.addGeometry(Part.Circle(App.Vector(-10, 21, 0), App.Vector(0, 0, 1), 1.7), False)
sketch7.addGeometry(Part.Circle(App.Vector(-10, 7, 0), App.Vector(0, 0, 1), 1.7), False)
sketch7.addConstraint(Sketcher.Constraint("Equal", 0, 1))
sketch7.addConstraint(Sketcher.Constraint("Vertical", 0, 3, 1, 3))
sketch7.addConstraint(Sketcher.Constraint("Diameter", 0, 3.4))
sketch7.addConstraint(Sketcher.Constraint("DistanceX", 0, 3, -1, 1, 10.0))
sketch7.addConstraint(Sketcher.Constraint("DistanceY", -1, 1, 0, 3, 21.0))
sketch7.addConstraint(Sketcher.Constraint("DistanceY", -1, 1, 1, 3, 7.0))
pocket6 = body.newObject("PartDesign::Pocket", "Pocket005")
pocket6.Profile = sketch7
pocket6.Length = 14
pocket6.Reversed = True

# Sketch on XZ plane
sketch8 = body.newObject("Sketcher::SketchObject", "Sketch007")
sketch8.AttachmentSupport = (doc.getObject("XZ_Plane"), [""])
sketch8.MapMode = "FlatFace"
sketch8.AttachmentOffset = App.Placement(App.Vector(0, 0, 2.5), App.Rotation())
add_polygon(sketch8, [(-13, 19.3), (-13, 28), (-7, 28), (-7, 19.3), (-10, 17.5)])  # lines 0-4
add_polygon(sketch8, [(-13, 8.7), (-10, 10.5), (-7, 8.7), (-7, 0), (-13, 0)])  # lines 5-9
sketch8.addConstraint(Sketcher.Constraint("Vertical", 0))
sketch8.addConstraint(Sketcher.Constraint("Horizontal", 1))
sketch8.addConstraint(Sketcher.Constraint("Vertical", 2))
sketch8.addConstraint(Sketcher.Constraint("Vertical", 7))
sketch8.addConstraint(Sketcher.Constraint("Horizontal", 8))
sketch8.addConstraint(Sketcher.Constraint("Vertical", 9))
sketch8.addConstraint(Sketcher.Constraint("PointOnObject", 7, 2, -1))
sketch8.addConstraint(Sketcher.Constraint("Parallel", 3, 5))
sketch8.addConstraint(Sketcher.Constraint("Parallel", 4, 6))
sketch8.addConstraint(Sketcher.Constraint("Horizontal", 2, 2, 4, 2))
sketch8.addConstraint(Sketcher.Constraint("Horizontal", 6, 2, 9, 2))
sketch8.addConstraint(Sketcher.Constraint("Vertical", 3, 2, 5, 2))
sketch8.addConstraint(Sketcher.Constraint("Vertical", 2, 2, 6, 2))
sketch8.addConstraint(Sketcher.Constraint("Vertical", 4, 2, 8, 2))
sketch8.addConstraint(Sketcher.Constraint("Equal", 2, 7))
sketch8.addConstraint(Sketcher.Constraint("DistanceX", 1, 1, 1, 2, 6.0))
sketch8.addConstraint(Sketcher.Constraint("Angle", 3, Q("-150 deg")))
sketch8.addConstraint(Sketcher.Constraint("DistanceX", 0, 2, -1, 1, 13.0))
sketch8.addConstraint(Sketcher.Constraint("DistanceY", -1, 1, 0, 2, 28.0))
sketch8.addConstraint(Sketcher.Constraint("DistanceY", 0, 1, 0, 2, 8.732051))
pocket7 = body.newObject("PartDesign::Pocket", "Pocket006")
pocket7.Profile = sketch8
pocket7.Length = 3
pocket7.Reversed = True

# Sketch on XY plane
sketch9 = body.newObject("Sketcher::SketchObject", "Sketch008")
sketch9.AttachmentSupport = (doc.getObject("XY_Plane"), [""])
sketch9.MapMode = "FlatFace"
sketch9.AttachmentOffset = App.Placement(App.Vector(0, 0, 27), App.Rotation())
sketch9.addGeometry(Part.LineSegment(App.Vector(-51.6, 4.7, 0), App.Vector(-48.4, -4.7, 0)), False)
sketch9.addGeometry(Part.ArcOfCircle(Part.Circle(App.Vector(-50, 0, 0), App.Vector(0, 0, 1), 5), math.radians(-71), math.radians(109)), False)
sketch9.addGeometry(Part.LineSegment(App.Vector(4, -2, 0), App.Vector(-4, -2, 0)), False)
sketch9.addGeometry(Part.ArcOfCircle(Part.Circle(App.Vector(0, -2, 0), App.Vector(0, 0, 1), 4), math.radians(180), math.radians(360)), False)
sketch9.addGeometry(Part.ArcOfCircle(Part.Circle(App.Vector(50, 0, 0), App.Vector(0, 0, 1), 5), math.radians(71), math.radians(251)), False)
sketch9.addGeometry(Part.LineSegment(App.Vector(48.4, -4.7, 0), App.Vector(51.6, 4.7, 0)), False)
sketch9.addGeometry(Part.ArcOfCircle(Part.Circle(App.Vector(35, -46, 0), App.Vector(0, 0, 1), 4), math.radians(72), math.radians(252)), False)
sketch9.addGeometry(Part.LineSegment(App.Vector(33.8, -49.8, 0), App.Vector(36.2, -42.2, 0)), False)
sketch9.addGeometry(Part.ArcOfCircle(Part.Circle(App.Vector(-35, -46, 0), App.Vector(0, 0, 1), 4), math.radians(-72), math.radians(108)), False)
sketch9.addGeometry(Part.LineSegment(App.Vector(-36.2, -42.2, 0), App.Vector(-33.8, -49.8, 0)), False)
sketch9.addConstraint(Sketcher.Constraint("Coincident", 0, 1, 1, 2))
sketch9.addConstraint(Sketcher.Constraint("Coincident", 1, 1, 0, 2))
sketch9.addConstraint(Sketcher.Constraint("Coincident", 2, 1, 3, 2))
sketch9.addConstraint(Sketcher.Constraint("Coincident", 3, 1, 2, 2))
sketch9.addConstraint(Sketcher.Constraint("Coincident", 4, 1, 5, 2))
sketch9.addConstraint(Sketcher.Constraint("Coincident", 5, 1, 4, 2))
sketch9.addConstraint(Sketcher.Constraint("Coincident", 6, 1, 7, 2))
sketch9.addConstraint(Sketcher.Constraint("Coincident", 7, 1, 6, 2))
sketch9.addConstraint(Sketcher.Constraint("Coincident", 8, 1, 9, 2))
sketch9.addConstraint(Sketcher.Constraint("Coincident", 9, 1, 8, 2))
sketch9.addConstraint(Sketcher.Constraint("Horizontal", 2))
sketch9.addConstraint(Sketcher.Constraint("Equal", 1, 4))
sketch9.addConstraint(Sketcher.Constraint("Equal", 3, 6))
sketch9.addConstraint(Sketcher.Constraint("Equal", 6, 8))
sketch9.addConstraint(Sketcher.Constraint("Symmetric", 1, 3, 4, 3, -1, 1))
sketch9.addConstraint(Sketcher.Constraint("Symmetric", 6, 3, 8, 3, -2))
sketch9.addConstraint(Sketcher.Constraint("Symmetric", 0, 1, 4, 1, -2))
sketch9.addConstraint(Sketcher.Constraint("PointOnObject", 3, 3, -2))
sketch9.addConstraint(Sketcher.Constraint("Horizontal", 3, 3, 2, 1))
sketch9.addConstraint(Sketcher.Constraint("Horizontal", 1, 1, 5, 1))
sketch9.addConstraint(Sketcher.Constraint("Horizontal", 7, 1, 8, 1))
sketch9.addConstraint(Sketcher.Constraint("Horizontal", 6, 1, 9, 1))
sketch9.addConstraint(Sketcher.Constraint("Radius", 1, 5.0))
sketch9.addConstraint(Sketcher.Constraint("Radius", 3, 4.0))
sketch9.addConstraint(Sketcher.Constraint("DistanceX", 1, 3, -1, 1, 50.0))
sketch9.addConstraint(Sketcher.Constraint("DistanceY", 3, 3, -1, 1, 2.0))
sketch9.addConstraint(Sketcher.Constraint("DistanceX", -1, 1, 6, 3, 35.0))
sketch9.addConstraint(Sketcher.Constraint("DistanceY", 6, 3, -1, 1, 46.0))
sketch9.addConstraint(Sketcher.Constraint("DistanceX", 0, 1, -1, 1, 51.64802))
sketch9.addConstraint(Sketcher.Constraint("DistanceX", 1, 1, -1, 1, 48.35198))
sketch9.addConstraint(Sketcher.Constraint("DistanceX", -1, 1, 6, 1, 36.223009))
sketch9.addConstraint(Sketcher.Constraint("DistanceX", -1, 1, 7, 1, 33.776991))
pad2 = body.newObject("PartDesign::Pad", "Pad001")
pad2.Profile = sketch9
pad2.Length = 1

# Sketch on XY plane
sketch10 = body.newObject("Sketcher::SketchObject", "Sketch009")
sketch10.AttachmentSupport = (doc.getObject("XY_Plane"), [""])
sketch10.MapMode = "FlatFace"
sketch10.addGeometry(Part.LineSegment(App.Vector(-20, -59, 0), App.Vector(-20, -29, 0)), False)
sketch10.addGeometry(Part.ArcOfCircle(Part.Circle(App.Vector(0, -29, 0), App.Vector(0, 0, 1), 20), math.radians(0), math.radians(180)), False)
sketch10.addGeometry(Part.LineSegment(App.Vector(20, -29, 0), App.Vector(20, -59, 0)), False)
sketch10.addGeometry(Part.LineSegment(App.Vector(20, -59, 0), App.Vector(-20, -59, 0)), False)
sketch10.addConstraint(Sketcher.Constraint("Tangent", 0, 2, 1, 2))
sketch10.addConstraint(Sketcher.Constraint("Tangent", 1, 1, 2, 1))
sketch10.addConstraint(Sketcher.Constraint("Coincident", 2, 2, 3, 1))
sketch10.addConstraint(Sketcher.Constraint("Coincident", 3, 2, 0, 1))
sketch10.addConstraint(Sketcher.Constraint("Vertical", 0))
sketch10.addConstraint(Sketcher.Constraint("Vertical", 2))
sketch10.addConstraint(Sketcher.Constraint("Horizontal", 3))
sketch10.addConstraint(Sketcher.Constraint("PointOnObject", 1, 3, -2))
sketch10.addConstraint(Sketcher.Constraint("Radius", 1, 20.0))
sketch10.addConstraint(Sketcher.Constraint("DistanceY", 1, 3, -1, 1, 29.0))
sketch10.addConstraint(Sketcher.Constraint("DistanceY", 0, 1, 0, 2, 29.870079))
pocket8 = body.newObject("PartDesign::Pocket", "Pocket007")
pocket8.Profile = sketch10
pocket8.Length = 23
pocket8.Reversed = True

# Sketch on XZ plane
sketch11 = body.newObject("Sketcher::SketchObject", "Sketch010")
sketch11.AttachmentSupport = (doc.getObject("XZ_Plane"), [""])
sketch11.MapMode = "FlatFace"
sketch11.AttachmentOffset = App.Placement(App.Vector(0, 0, -10), App.Rotation())
sketch11.addGeometry(Part.Circle(App.Vector(-10, 7, 0), App.Vector(0, 0, 1), 3), False)
sketch11.addGeometry(Part.Circle(App.Vector(-10, 21, 0), App.Vector(0, 0, 1), 3), False)
sketch11.addConstraint(Sketcher.Constraint("Equal", 0, 1))
sketch11.addConstraint(Sketcher.Constraint("Vertical", 0, 3, 1, 3))
sketch11.addConstraint(Sketcher.Constraint("Diameter", 0, 6.0))
sketch11.addConstraint(Sketcher.Constraint("DistanceX", 0, 3, -1, 1, 10.0))
sketch11.addConstraint(Sketcher.Constraint("DistanceY", -1, 1, 0, 3, 7.0))
sketch11.addConstraint(Sketcher.Constraint("DistanceY", -1, 1, 1, 3, 21.0))
pocket9 = body.newObject("PartDesign::Pocket", "Pocket008")
pocket9.Profile = sketch11
pocket9.Length = 4
pocket9.Reversed = True

doc.recompute()
